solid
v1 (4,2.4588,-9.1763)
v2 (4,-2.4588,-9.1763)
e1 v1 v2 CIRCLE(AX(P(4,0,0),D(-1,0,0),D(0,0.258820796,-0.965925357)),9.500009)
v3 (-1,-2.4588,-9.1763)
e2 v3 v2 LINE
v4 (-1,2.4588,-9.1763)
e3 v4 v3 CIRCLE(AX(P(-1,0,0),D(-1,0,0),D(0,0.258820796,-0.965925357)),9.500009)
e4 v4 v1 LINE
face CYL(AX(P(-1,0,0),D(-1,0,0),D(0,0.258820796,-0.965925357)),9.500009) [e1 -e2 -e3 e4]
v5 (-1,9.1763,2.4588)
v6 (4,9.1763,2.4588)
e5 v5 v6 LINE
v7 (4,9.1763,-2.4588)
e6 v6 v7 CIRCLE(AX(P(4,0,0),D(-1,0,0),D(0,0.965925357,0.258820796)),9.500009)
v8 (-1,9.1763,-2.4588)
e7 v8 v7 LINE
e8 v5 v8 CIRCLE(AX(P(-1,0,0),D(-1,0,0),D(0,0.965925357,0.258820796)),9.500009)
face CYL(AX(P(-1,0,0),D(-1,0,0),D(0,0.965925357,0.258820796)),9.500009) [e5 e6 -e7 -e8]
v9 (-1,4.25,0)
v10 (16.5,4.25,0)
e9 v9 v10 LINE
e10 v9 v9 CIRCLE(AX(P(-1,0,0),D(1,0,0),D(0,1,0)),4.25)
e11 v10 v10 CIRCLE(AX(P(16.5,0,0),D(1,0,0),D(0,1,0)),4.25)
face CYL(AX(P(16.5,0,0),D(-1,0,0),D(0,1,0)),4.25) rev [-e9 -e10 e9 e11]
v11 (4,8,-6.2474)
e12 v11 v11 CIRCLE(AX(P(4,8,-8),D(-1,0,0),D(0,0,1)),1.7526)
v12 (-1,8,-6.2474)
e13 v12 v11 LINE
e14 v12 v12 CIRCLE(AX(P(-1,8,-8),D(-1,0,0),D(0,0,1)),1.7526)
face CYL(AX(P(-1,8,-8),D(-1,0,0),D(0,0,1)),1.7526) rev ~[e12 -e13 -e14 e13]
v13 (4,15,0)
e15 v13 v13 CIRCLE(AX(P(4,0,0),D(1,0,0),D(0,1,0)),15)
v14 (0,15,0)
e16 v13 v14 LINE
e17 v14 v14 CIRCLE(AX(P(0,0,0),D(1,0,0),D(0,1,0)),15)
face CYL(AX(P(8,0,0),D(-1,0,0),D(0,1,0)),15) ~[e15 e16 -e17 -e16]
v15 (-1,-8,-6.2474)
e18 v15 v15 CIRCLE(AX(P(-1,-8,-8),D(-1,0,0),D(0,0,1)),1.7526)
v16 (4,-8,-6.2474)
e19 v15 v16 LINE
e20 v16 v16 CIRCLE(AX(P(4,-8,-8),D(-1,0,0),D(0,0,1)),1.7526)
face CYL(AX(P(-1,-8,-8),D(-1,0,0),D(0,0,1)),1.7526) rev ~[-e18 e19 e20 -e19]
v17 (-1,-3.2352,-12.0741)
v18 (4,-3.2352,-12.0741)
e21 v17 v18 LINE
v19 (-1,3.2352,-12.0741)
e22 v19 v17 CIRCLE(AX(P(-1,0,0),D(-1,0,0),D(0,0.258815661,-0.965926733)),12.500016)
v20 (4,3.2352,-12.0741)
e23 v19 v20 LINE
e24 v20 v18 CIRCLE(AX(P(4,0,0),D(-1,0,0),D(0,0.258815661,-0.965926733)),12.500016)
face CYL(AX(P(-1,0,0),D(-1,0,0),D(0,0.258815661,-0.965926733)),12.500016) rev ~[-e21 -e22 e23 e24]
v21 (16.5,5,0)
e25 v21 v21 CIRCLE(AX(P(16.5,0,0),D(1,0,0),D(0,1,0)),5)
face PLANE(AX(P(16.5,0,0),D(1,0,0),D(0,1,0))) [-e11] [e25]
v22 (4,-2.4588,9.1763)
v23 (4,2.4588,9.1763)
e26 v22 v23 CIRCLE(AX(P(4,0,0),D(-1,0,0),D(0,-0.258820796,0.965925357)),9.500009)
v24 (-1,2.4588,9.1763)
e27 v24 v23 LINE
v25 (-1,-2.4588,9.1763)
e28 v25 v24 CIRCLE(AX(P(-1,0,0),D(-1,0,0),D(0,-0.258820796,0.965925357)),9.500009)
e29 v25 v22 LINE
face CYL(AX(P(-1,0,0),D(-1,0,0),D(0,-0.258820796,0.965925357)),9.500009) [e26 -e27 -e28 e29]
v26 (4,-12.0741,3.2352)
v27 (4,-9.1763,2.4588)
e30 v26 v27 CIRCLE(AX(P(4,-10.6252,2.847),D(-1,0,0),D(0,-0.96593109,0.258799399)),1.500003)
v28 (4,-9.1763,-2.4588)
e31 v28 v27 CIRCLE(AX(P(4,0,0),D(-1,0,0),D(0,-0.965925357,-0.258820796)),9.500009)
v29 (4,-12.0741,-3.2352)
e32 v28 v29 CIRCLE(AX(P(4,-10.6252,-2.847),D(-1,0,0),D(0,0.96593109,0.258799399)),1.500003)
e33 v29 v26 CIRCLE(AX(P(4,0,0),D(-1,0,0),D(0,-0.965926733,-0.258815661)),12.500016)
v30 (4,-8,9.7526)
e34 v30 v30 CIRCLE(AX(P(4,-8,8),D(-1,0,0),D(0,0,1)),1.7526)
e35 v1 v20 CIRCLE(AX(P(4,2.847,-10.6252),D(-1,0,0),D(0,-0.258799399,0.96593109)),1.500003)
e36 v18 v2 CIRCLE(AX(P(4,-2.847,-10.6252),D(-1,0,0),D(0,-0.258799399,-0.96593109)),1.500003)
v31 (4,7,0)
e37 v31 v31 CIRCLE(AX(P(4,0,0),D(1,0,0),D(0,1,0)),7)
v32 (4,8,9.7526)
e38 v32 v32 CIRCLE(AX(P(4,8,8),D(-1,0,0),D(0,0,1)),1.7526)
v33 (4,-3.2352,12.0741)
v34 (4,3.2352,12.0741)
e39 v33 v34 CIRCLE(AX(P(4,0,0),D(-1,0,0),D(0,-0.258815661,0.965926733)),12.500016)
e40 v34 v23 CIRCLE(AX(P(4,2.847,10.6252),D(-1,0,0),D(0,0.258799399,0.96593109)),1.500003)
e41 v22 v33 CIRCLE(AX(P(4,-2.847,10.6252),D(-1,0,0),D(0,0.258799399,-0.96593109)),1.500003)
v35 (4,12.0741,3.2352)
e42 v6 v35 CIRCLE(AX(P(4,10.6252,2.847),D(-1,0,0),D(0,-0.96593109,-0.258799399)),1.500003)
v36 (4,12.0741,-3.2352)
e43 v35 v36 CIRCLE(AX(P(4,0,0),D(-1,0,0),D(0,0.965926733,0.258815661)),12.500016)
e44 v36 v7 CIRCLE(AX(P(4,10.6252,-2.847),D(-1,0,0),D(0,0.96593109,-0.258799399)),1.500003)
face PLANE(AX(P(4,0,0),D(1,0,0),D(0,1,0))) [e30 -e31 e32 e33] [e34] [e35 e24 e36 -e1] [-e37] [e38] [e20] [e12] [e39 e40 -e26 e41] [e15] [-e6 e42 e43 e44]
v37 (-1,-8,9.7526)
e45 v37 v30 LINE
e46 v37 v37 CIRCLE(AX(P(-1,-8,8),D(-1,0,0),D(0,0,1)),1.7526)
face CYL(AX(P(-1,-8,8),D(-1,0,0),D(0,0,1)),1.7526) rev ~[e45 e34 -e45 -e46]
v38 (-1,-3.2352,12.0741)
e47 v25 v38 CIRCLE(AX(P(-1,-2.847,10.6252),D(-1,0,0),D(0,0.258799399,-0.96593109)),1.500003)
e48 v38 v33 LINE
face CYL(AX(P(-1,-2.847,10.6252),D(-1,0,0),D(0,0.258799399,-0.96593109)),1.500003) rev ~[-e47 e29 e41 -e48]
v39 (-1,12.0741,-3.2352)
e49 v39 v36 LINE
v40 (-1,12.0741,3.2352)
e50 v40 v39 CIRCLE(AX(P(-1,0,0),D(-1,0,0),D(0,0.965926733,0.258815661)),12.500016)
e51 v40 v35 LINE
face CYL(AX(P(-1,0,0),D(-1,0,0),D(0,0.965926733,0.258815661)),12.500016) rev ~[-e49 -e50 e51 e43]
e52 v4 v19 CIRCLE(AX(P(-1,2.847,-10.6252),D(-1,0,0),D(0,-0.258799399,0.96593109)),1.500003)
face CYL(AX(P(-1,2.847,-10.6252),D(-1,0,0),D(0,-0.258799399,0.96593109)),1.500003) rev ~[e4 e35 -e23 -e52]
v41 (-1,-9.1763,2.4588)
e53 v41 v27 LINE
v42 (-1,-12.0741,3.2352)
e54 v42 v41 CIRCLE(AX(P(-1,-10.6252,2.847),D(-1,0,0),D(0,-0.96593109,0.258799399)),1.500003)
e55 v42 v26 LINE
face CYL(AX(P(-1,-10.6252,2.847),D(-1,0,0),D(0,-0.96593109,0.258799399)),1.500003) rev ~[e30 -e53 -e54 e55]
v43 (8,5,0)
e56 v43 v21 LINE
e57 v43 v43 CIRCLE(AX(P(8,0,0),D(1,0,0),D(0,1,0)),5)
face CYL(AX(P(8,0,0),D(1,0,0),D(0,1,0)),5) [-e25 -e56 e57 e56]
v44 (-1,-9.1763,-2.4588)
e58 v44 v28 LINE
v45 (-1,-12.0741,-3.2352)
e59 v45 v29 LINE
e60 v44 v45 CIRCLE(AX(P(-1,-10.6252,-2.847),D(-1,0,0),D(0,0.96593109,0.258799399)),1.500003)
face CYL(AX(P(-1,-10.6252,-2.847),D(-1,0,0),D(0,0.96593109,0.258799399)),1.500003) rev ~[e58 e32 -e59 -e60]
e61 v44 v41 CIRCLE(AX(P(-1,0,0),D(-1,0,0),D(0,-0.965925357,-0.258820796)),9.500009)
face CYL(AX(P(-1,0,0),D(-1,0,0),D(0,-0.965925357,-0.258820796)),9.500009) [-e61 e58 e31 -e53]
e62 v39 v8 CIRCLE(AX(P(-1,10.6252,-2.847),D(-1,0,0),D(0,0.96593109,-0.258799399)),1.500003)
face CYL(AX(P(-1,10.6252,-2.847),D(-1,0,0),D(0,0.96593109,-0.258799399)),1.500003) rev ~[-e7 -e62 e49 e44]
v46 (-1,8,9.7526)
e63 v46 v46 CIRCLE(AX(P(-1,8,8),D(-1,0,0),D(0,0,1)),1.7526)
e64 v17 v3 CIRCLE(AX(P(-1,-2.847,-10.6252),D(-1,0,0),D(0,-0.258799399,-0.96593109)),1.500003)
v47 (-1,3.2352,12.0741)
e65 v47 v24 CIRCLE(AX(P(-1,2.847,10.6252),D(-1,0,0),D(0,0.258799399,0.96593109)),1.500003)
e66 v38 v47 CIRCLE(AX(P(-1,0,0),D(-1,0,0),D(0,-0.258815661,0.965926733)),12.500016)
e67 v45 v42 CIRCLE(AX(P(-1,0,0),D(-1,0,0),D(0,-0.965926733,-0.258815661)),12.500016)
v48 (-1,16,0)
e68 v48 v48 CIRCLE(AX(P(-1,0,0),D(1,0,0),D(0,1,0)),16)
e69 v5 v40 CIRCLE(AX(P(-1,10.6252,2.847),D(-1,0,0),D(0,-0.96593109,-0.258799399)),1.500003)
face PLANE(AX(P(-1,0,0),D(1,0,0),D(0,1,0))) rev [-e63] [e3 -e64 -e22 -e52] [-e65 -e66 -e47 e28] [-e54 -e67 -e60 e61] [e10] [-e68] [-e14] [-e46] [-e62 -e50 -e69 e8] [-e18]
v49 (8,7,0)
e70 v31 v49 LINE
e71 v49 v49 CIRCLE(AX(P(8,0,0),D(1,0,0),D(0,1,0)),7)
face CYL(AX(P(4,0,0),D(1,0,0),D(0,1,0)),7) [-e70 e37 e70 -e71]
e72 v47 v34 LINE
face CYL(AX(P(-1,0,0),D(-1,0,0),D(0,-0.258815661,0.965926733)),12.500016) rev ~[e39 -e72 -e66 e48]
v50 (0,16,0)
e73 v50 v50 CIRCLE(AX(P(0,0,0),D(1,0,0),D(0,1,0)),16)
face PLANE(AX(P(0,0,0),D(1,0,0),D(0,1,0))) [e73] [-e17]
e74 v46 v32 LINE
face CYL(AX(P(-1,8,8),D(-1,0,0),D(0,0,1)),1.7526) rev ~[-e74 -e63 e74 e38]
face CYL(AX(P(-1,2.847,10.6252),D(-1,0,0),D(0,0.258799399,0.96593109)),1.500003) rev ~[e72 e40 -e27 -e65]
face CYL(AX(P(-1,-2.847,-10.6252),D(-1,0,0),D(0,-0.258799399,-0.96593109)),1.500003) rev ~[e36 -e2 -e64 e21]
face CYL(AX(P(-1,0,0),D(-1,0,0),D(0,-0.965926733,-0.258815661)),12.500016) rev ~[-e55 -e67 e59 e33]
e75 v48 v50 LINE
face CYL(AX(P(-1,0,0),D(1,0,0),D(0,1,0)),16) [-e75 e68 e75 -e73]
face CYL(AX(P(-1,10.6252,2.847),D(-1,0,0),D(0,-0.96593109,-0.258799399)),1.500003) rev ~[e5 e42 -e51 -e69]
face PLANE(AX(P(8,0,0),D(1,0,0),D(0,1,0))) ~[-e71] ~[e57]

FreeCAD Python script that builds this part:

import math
import FreeCAD as App
import Part
import Sketcher

V = App.Vector

doc = App.newDocument("Part")
body = doc.addObject("PartDesign::Body", "Body")

sketch1 = doc.addObject("Sketcher::SketchObject", "Sketch")
body.addObject(sketch1)
sketch1.AttachmentSupport = (doc.XY_Plane, [""])
sketch1.MapMode = "FlatFace"
sketch1.addGeometry(Part.LineSegment(V(-1, 4.25, 0), V(16.5, 4.25, 0)), False)
sketch1.addGeometry(Part.LineSegment(V(16.5, 4.25, 0), V(16.5, 5, 0)), False)
sketch1.addGeometry(Part.LineSegment(V(16.5, 5, 0), V(8, 5, 0)), False)
sketch1.addGeometry(Part.LineSegment(V(8, 5, 0), V(8, 7, 0)), False)
sketch1.addGeometry(Part.LineSegment(V(8, 7, 0), V(4, 7, 0)), False)
sketch1.addGeometry(Part.LineSegment(V(4, 7, 0), V(4, 15, 0)), False)
sketch1.addGeometry(Part.LineSegment(V(4, 15, 0), V(0, 15, 0)), False)
sketch1.addGeometry(Part.LineSegment(V(0, 15, 0), V(0, 16, 0)), False)
sketch1.addGeometry(Part.LineSegment(V(0, 16, 0), V(-1, 16, 0)), False)
sketch1.addGeometry(Part.LineSegment(V(-1, 16, 0), V(-1, 4.25, 0)), False)
sketch1.addConstraint(Sketcher.Constraint("Coincident", 0, 2, 1, 1))
sketch1.addConstraint(Sketcher.Constraint("Coincident", 1, 2, 2, 1))
sketch1.addConstraint(Sketcher.Constraint("Coincident", 2, 2, 3, 1))
sketch1.addConstraint(Sketcher.Constraint("Coincident", 3, 2, 4, 1))
sketch1.addConstraint(Sketcher.Constraint("Coincident", 4, 2, 5, 1))
sketch1.addConstraint(Sketcher.Constraint("Coincident", 5, 2, 6, 1))
sketch1.addConstraint(Sketcher.Constraint("Coincident", 6, 2, 7, 1))
sketch1.addConstraint(Sketcher.Constraint("Coincident", 7, 2, 8, 1))
sketch1.addConstraint(Sketcher.Constraint("Coincident", 8, 2, 9, 1))
sketch1.addConstraint(Sketcher.Constraint("Coincident", 9, 2, 0, 1))
sketch1.addConstraint(Sketcher.Constraint("Horizontal", 0))
sketch1.addConstraint(Sketcher.Constraint("Vertical", 1))
sketch1.addConstraint(Sketcher.Constraint("Horizontal", 2))
sketch1.addConstraint(Sketcher.Constraint("Vertical", 3))
sketch1.addConstraint(Sketcher.Constraint("Horizontal", 4))
sketch1.addConstraint(Sketcher.Constraint("Vertical", 5))
sketch1.addConstraint(Sketcher.Constraint("Horizontal", 6))
sketch1.addConstraint(Sketcher.Constraint("Vertical", 7))
sketch1.addConstraint(Sketcher.Constraint("Horizontal", 8))
sketch1.addConstraint(Sketcher.Constraint("Vertical", 9))
sketch1.addConstraint(Sketcher.Constraint("PointOnObject", 6, 2, -2))
sketch1.addConstraint(Sketcher.Constraint("Equal", 4, 6))
sketch1.addConstraint(Sketcher.Constraint("Equal", 8, 7))
sketch1.addConstraint(Sketcher.Constraint("DistanceX", 8, 2, 8, 1, 1.0))
sketch1.addConstraint(Sketcher.Constraint("DistanceY", 5, 1, 5, 2, 8.0))
sketch1.addConstraint(Sketcher.Constraint("DistanceX", 0, 1, 0, 2, 17.5))
sketch1.addConstraint(Sketcher.Constraint("DistanceY", -1, 1, 1, 2, 5.0))
sketch1.addConstraint(Sketcher.Constraint("DistanceX", -1, 1, 2, 2, 8.0))
sketch1.addConstraint(Sketcher.Constraint("DistanceY", -1, 1, 3, 2, 7.0))
sketch1.addConstraint(Sketcher.Constraint("DistanceY", 1, 1, 1, 2, 0.75))
revolution = doc.addObject("PartDesign::Revolution", "Revolution")
body.addObject(revolution)
revolution.Profile = sketch1
revolution.ReferenceAxis = (sketch1, ["H_Axis"])
revolution.Angle = 360

sketch2 = doc.addObject("Sketcher::SketchObject", "Sketch001")
body.addObject(sketch2)
sketch2.AttachmentSupport = (doc.YZ_Plane, [""])
sketch2.MapMode = "FlatFace"
sketch2.AttachmentOffset = App.Placement(V(0, 0, -1), App.Rotation())
sketch2.addGeometry(Part.Circle(V(8, 8, 0), V(0, 0, 1), 1.7526), False)
sketch2.addGeometry(Part.Circle(V(8, -8, 0), V(0, 0, 1), 1.7526), False)
sketch2.addGeometry(Part.Circle(V(-8, -8, 0), V(0, 0, 1), 1.7526), False)
sketch2.addGeometry(Part.Circle(V(-8, 8, 0), V(0, 0, 1), 1.7526), False)
sketch2.addGeometry(Part.ArcOfCircle(Part.Circle(V(10.6252, 2.847, 0), V(0, 0, 1), 1.500003), math.radians(14.998835), math.radians(194.998835)), False)
sketch2.addGeometry(Part.ArcOfCircle(Part.Circle(V(0, 0, 0), V(0, 0, 1), 12.500016), math.radians(-14.999799), math.radians(14.999799)), False)
sketch2.addGeometry(Part.ArcOfCircle(Part.Circle(V(10.6252, -2.847, 0), V(0, 0, 1), 1.500003), math.radians(165.001165), math.radians(345.001165)), False)
sketch2.addGeometry(Part.ArcOfCircle(Part.Circle(V(0, 0, 0), V(0, 0, 1), 9.500009), math.radians(-15.000104), math.radians(15.000104)), False)
sketch2.addGeometry(Part.ArcOfCircle(Part.Circle(V(0, 0, 0), V(0, 0, 1), 9.500009), math.radians(-105.000104), math.radians(-74.999896)), False)
sketch2.addGeometry(Part.ArcOfCircle(Part.Circle(V(2.847, -10.6252, 0), V(0, 0, 1), 1.500003), math.radians(-75.001165), math.radians(104.998835)), False)
sketch2.addGeometry(Part.ArcOfCircle(Part.Circle(V(0, 0, 0), V(0, 0, 1), 12.500016), math.radians(-104.999799), math.radians(-75.000201)), False)
sketch2.addGeometry(Part.ArcOfCircle(Part.Circle(V(-2.847, -10.6252, 0), V(0, 0, 1), 1.500003), math.radians(75.001165), math.radians(255.001165)), False)
sketch2.addGeometry(Part.ArcOfCircle(Part.Circle(V(0, 0, 0), V(0, 0, 1), 9.500009), math.radians(164.999896), math.radians(195.000104)), False)
sketch2.addGeometry(Part.ArcOfCircle(Part.Circle(V(-10.6252, -2.847, 0), V(0, 0, 1), 1.500003), math.radians(-165.001165), math.radians(14.998835)), False)
sketch2.addGeometry(Part.ArcOfCircle(Part.Circle(V(0, 0, 0), V(0, 0, 1), 12.500016), math.radians(165.000201), math.radians(194.999799)), False)
sketch2.addGeometry(Part.ArcOfCircle(Part.Circle(V(-10.6252, 2.847, 0), V(0, 0, 1), 1.500003), math.radians(-14.998835), math.radians(165.001165)), False)
sketch2.addGeometry(Part.ArcOfCircle(Part.Circle(V(0, 0, 0), V(0, 0, 1), 9.500009), math.radians(74.999896), math.radians(105.000104)), False)
sketch2.addGeometry(Part.ArcOfCircle(Part.Circle(V(-2.847, 10.6252, 0), V(0, 0, 1), 1.500003), math.radians(104.998835), math.radians(284.998835)), False)
sketch2.addGeometry(Part.ArcOfCircle(Part.Circle(V(0, 0, 0), V(0, 0, 1), 12.500016), math.radians(75.000201), math.radians(104.999799)), False)
sketch2.addGeometry(Part.ArcOfCircle(Part.Circle(V(2.847, 10.6252, 0), V(0, 0, 1), 1.500003), math.radians(-104.998835), math.radians(75.001165)), False)
sketch2.addConstraint(Sketcher.Constraint("Tangent", 4, 1, 5, 2))
sketch2.addConstraint(Sketcher.Constraint("Tangent", 5, 1, 6, 2))
sketch2.addConstraint(Sketcher.Constraint("Tangent", 6, 1, 7, 1))
sketch2.addConstraint(Sketcher.Constraint("Tangent", 7, 2, 4, 2))
sketch2.addConstraint(Sketcher.Constraint("Tangent", 8, 2, 9, 2))
sketch2.addConstraint(Sketcher.Constraint("Tangent", 9, 1, 10, 2))
sketch2.addConstraint(Sketcher.Constraint("Tangent", 10, 1, 11, 2))
sketch2.addConstraint(Sketcher.Constraint("Tangent", 11, 1, 8, 1))
sketch2.addConstraint(Sketcher.Constraint("Tangent", 12, 2, 13, 2))
sketch2.addConstraint(Sketcher.Constraint("Tangent", 13, 1, 14, 2))
sketch2.addConstraint(Sketcher.Constraint("Tangent", 14, 1, 15, 2))
sketch2.addConstraint(Sketcher.Constraint("Tangent", 15, 1, 12, 1))
sketch2.addConstraint(Sketcher.Constraint("Tangent", 16, 2, 17, 2))
sketch2.addConstraint(Sketcher.Constraint("Tangent", 17, 1, 18, 2))
sketch2.addConstraint(Sketcher.Constraint("Tangent", 18, 1, 19, 2))
sketch2.addConstraint(Sketcher.Constraint("Tangent", 19, 1, 16, 1))
sketch2.addConstraint(Sketcher.Constraint("Coincident", 5, 3, -1, 1))
sketch2.addConstraint(Sketcher.Constraint("Coincident", 7, 3, -1, 1))
sketch2.addConstraint(Sketcher.Constraint("Coincident", 8, 3, -1, 1))
sketch2.addConstraint(Sketcher.Constraint("Coincident", 10, 3, -1, 1))
sketch2.addConstraint(Sketcher.Constraint("Coincident", 12, 3, -1, 1))
sketch2.addConstraint(Sketcher.Constraint("Coincident", 14, 3, -1, 1))
sketch2.addConstraint(Sketcher.Constraint("Coincident", 16, 3, -1, 1))
sketch2.addConstraint(Sketcher.Constraint("Coincident", 18, 3, -1, 1))
sketch2.addConstraint(Sketcher.Constraint("Equal", 0, 1))
sketch2.addConstraint(Sketcher.Constraint("Equal", 1, 2))
sketch2.addConstraint(Sketcher.Constraint("Equal", 2, 3))
sketch2.addConstraint(Sketcher.Constraint("Equal", 7, 8))
sketch2.addConstraint(Sketcher.Constraint("Equal", 6, 9))
sketch2.addConstraint(Sketcher.Constraint("Equal", 8, 12))
sketch2.addConstraint(Sketcher.Constraint("Equal", 11, 13))
sketch2.addConstraint(Sketcher.Constraint("Equal", 12, 16))
sketch2.addConstraint(Sketcher.Constraint("Equal", 15, 17))
sketch2.addConstraint(Sketcher.Constraint("Symmetric", 0, 3, 2, 3, -1, 1))
sketch2.addConstraint(Sketcher.Constraint("Symmetric", 1, 3, 3, 3, -1, 1))
sketch2.addConstraint(Sketcher.Constraint("Symmetric", 1, 3, 2, 3, -2))
sketch2.addConstraint(Sketcher.Constraint("Horizontal", 9, 3, 11, 3))
sketch2.addConstraint(Sketcher.Constraint("Horizontal", 6, 3, 13, 3))
sketch2.addConstraint(Sketcher.Constraint("Horizontal", 4, 3, 15, 3))
sketch2.addConstraint(Sketcher.Constraint("Horizontal", 17, 3, 19, 3))
sketch2.addConstraint(Sketcher.Constraint("Vertical", 4, 3, 6, 3))
sketch2.addConstraint(Sketcher.Constraint("Vertical", 11, 3, 17, 3))
sketch2.addConstraint(Sketcher.Constraint("Radius", 4, 1.5))
sketch2.addConstraint(Sketcher.Constraint("DistanceY", 1, 3, 0, 3, 16.0))
sketch2.addConstraint(Sketcher.Constraint("DistanceX", 2, 3, 1, 3, 16.0))
sketch2.addConstraint(Sketcher.Constraint("Diameter", 0, 3.5052))
sketch2.addConstraint(Sketcher.Constraint("Radius", 5, 12.5))
sketch2.addConstraint(Sketcher.Constraint("DistanceY", 4, 1, 19, 3, 7.39))
sketch2.addConstraint(Sketcher.Constraint("DistanceY", -1, 1, 4, 3, 2.847))
pocket1 = doc.addObject("PartDesign::Pocket", "Pocket")
body.addObject(pocket1)
pocket1.Profile = sketch2
pocket1.Type = "ThroughAll"
pocket1.Reversed = True

doc.recompute()
